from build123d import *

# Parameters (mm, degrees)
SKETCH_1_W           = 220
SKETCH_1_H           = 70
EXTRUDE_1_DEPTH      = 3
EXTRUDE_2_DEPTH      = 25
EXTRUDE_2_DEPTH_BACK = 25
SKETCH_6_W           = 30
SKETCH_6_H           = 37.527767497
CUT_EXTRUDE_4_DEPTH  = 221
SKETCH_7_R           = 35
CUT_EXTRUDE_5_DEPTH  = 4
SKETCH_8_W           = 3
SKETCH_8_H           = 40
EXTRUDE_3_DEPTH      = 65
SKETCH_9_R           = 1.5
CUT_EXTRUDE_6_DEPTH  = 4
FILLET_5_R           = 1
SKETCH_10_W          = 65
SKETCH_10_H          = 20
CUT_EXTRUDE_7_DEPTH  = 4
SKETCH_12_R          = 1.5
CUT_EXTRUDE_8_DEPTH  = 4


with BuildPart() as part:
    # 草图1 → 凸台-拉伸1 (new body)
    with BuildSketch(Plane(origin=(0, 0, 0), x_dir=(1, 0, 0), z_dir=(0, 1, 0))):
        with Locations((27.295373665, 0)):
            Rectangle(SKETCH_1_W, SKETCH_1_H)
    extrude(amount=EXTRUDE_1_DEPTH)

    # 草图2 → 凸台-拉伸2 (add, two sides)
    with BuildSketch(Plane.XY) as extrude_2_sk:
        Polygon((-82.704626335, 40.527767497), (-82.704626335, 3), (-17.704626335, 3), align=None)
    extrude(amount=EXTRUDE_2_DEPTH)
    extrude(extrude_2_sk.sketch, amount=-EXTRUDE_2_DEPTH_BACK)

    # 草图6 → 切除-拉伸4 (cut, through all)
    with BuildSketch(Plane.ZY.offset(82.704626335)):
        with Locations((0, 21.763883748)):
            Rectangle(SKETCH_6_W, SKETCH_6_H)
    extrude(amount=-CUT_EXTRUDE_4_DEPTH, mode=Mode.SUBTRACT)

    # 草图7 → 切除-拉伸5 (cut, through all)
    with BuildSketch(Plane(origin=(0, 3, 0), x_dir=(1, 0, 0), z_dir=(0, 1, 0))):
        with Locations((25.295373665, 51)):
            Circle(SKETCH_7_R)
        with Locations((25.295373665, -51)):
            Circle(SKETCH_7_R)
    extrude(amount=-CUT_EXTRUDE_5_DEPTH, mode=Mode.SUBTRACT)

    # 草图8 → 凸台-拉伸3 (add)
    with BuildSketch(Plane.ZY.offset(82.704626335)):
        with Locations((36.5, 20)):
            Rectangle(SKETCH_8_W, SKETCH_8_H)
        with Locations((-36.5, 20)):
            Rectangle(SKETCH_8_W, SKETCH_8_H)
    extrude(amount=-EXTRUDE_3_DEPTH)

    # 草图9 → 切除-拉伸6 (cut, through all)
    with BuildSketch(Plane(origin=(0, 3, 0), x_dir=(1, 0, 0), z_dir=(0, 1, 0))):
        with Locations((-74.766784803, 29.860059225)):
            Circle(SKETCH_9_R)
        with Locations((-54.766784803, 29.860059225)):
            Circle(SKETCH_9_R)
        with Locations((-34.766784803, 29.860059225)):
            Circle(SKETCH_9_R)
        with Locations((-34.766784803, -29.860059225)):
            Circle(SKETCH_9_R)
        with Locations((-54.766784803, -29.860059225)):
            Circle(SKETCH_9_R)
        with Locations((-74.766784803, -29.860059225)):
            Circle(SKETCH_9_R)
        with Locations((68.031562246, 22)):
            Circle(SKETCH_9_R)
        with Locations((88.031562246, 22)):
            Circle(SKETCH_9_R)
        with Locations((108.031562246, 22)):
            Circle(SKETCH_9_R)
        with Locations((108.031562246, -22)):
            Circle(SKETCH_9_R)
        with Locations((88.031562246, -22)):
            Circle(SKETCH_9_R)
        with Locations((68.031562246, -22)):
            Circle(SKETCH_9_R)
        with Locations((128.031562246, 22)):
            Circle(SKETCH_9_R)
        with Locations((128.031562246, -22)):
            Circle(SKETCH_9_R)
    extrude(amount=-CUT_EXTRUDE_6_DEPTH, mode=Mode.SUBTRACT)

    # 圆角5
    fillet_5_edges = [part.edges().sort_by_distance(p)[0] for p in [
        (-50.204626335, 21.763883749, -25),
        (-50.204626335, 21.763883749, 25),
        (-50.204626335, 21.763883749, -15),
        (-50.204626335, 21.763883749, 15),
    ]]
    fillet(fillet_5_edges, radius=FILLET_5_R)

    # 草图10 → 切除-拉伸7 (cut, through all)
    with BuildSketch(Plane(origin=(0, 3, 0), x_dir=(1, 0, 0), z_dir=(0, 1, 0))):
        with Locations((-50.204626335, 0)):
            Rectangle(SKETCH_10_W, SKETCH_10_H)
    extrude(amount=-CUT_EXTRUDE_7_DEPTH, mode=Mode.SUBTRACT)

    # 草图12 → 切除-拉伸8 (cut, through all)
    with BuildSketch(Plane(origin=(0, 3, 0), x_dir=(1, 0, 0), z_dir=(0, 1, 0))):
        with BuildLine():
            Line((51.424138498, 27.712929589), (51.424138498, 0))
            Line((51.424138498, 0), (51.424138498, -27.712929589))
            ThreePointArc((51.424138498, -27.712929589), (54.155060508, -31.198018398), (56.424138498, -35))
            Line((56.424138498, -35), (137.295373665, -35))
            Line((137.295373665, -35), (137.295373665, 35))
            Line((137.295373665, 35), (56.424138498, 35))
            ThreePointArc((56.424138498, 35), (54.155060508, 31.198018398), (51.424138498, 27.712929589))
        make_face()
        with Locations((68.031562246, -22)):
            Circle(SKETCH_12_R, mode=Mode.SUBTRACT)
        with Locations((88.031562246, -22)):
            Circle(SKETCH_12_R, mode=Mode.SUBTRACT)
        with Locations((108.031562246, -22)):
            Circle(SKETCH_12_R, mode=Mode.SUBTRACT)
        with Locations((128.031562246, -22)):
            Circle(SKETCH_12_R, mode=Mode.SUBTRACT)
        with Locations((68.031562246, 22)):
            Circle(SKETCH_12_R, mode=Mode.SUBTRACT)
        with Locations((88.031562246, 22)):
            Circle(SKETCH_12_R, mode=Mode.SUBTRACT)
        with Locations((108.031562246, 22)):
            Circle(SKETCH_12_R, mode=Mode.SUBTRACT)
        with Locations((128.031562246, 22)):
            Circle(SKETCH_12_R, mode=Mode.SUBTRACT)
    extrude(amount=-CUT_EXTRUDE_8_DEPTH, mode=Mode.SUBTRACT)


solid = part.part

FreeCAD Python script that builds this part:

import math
import FreeCAD as App
import Part
import Sketcher
Q = App.Units.Quantity


def edges_at(feature, points):
    """Names of the edges that pass closest to the given points."""
    edges = feature.Shape.Edges
    near = lambda p: min(range(len(edges)), key=lambda i: edges[i].distToShape(Part.Vertex(*p))[0])
    return sorted({f"Edge{near(p) + 1}" for p in points})


def add_polygon(sketch, points):
    """Adds a closed chain of lines whose ends are joined by coincident constraints."""
    first, n = sketch.GeometryCount, len(points)
    for a, b in zip(points, points[1:] + points[:1]):
        sketch.addGeometry(Part.LineSegment(App.Vector(*a, 0), App.Vector(*b, 0)), False)
    for i in range(n):
        sketch.addConstraint(Sketcher.Constraint("Coincident", first + i, 2, first + (i + 1) % n, 1))

doc = App.newDocument("Part")
params = doc.addObject("Spreadsheet::Sheet", "Params")
for row, (alias, value) in enumerate([
    ("sketch1_width", "220 mm"),
    ("sketch1_height", "70 mm"),
    ("pad1_length", "3 mm"),
    ("sketch2_width", "65 mm"),
    ("pad2_length", "25 mm"),
    ("pad2_length2", "25 mm"),
    ("sketch3_height", "30 mm"),
    ("sketch4_diameter", "70 mm"),
    ("sketch5_width", "40 mm"),
    ("sketch5_height", "3 mm"),
    ("pad3_length", "65 mm"),
    ("sketch6_diameter", "3 mm"),
    ("fillet_radius", "1 mm"),
    ("sketch7_width", "65 mm"),
    ("sketch7_height", "20 mm"),
    ("sketch8_diameter", "3 mm"),
    ("sketch8_radius", "35 mm"),
    ("sketch8_height", "70 mm"),
], start=1):
    params.set(f"A{row}", alias)
    params.set(f"B{row}", "=" + value)
    params.setAlias(f"B{row}", alias)

body = doc.addObject("PartDesign::Body", "Body")

sketch1 = body.newObject("Sketcher::SketchObject", "Sketch")
sketch1.AttachmentSupport = (doc.getObject("XZ_Plane"), [""])
sketch1.MapMode = "FlatFace"
add_polygon(sketch1, [(-82.704626, -35), (-82.704626, 35), (137.295374, 35), (137.295374, -35)])
sketch1.addConstraint(Sketcher.Constraint("Vertical", 0))
sketch1.addConstraint(Sketcher.Constraint("Horizontal", 1))
sketch1.addConstraint(Sketcher.Constraint("Vertical", 2))
sketch1.addConstraint(Sketcher.Constraint("Horizontal", 3))
sketch1.addConstraint(Sketcher.Constraint("DistanceX", 1, 1, 1, 2, Q("220 mm")))
sketch1.addConstraint(Sketcher.Constraint("DistanceY", 0, 1, 0, 2, Q("70 mm")))
sketch1.addConstraint(Sketcher.Constraint("DistanceY", -1, 1, 0, 2, Q("35 mm")))
sketch1.addConstraint(Sketcher.Constraint("DistanceX", 0, 2, -1, 1, Q("82.704626 mm")))
sketch1.setExpression("Constraints[8]", "Params.sketch1_width")
sketch1.setExpression("Constraints[9]", "Params.sketch1_height")
pad1 = body.newObject("PartDesign::Pad", "Pad")
pad1.Profile = sketch1
pad1.setExpression("Length", "Params.pad1_length")
pad1.Reversed = True

sketch2 = body.newObject("Sketcher::SketchObject", "Sketch001")
sketch2.AttachmentSupport = (doc.getObject("XY_Plane"), [""])
sketch2.MapMode = "FlatFace"
add_polygon(sketch2, [(-82.704626, 40.527767), (-82.704626, 3), (-17.704626, 3)])
sketch2.addConstraint(Sketcher.Constraint("Vertical", 0))
sketch2.addConstraint(Sketcher.Constraint("Horizontal", 1))
sketch2.addConstraint(Sketcher.Constraint("DistanceX", 1, 1, 1, 2, Q("65 mm")))
sketch2.addConstraint(Sketcher.Constraint("Angle", 2, Q("150 deg")))
sketch2.addConstraint(Sketcher.Constraint("DistanceY", -1, 1, 0, 2, Q("3 mm")))
sketch2.addConstraint(Sketcher.Constraint("DistanceX", 0, 2, -1, 1, Q("82.704626 mm")))
sketch2.setExpression("Constraints[5]", "Params.sketch2_width")
pad2 = body.newObject("PartDesign::Pad", "Pad001")
pad2.Profile = sketch2
pad2.Type = "TwoLengths"
pad2.setExpression("Length", "Params.pad2_length")
pad2.setExpression("Length2", "Params.pad2_length2")

sketch3 = body.newObject("Sketcher::SketchObject", "Sketch002")
sketch3.AttachmentSupport = (doc.getObject("YZ_Plane"), [""])
sketch3.MapMode = "FlatFace"
sketch3.AttachmentOffset = App.Placement(App.Vector(0, 0, -82.704626), App.Rotation())
add_polygon(sketch3, [(40.527767, -15), (3, -15), (3, 15), (40.527767, 15)])
sketch3.addConstraint(Sketcher.Constraint("Horizontal", 0))
sketch3.addConstraint(Sketcher.Constraint("Vertical", 1))
sketch3.addConstraint(Sketcher.Constraint("Horizontal", 2))
sketch3.addConstraint(Sketcher.Constraint("Vertical", 3))
sketch3.addConstraint(Sketcher.Constraint("DistanceY", 1, 1, 1, 2, Q("30 mm")))
sketch3.addConstraint(Sketcher.Constraint("DistanceX", -1, 1, 0, 2, Q("3 mm")))
sketch3.addConstraint(Sketcher.Constraint("DistanceY", 0, 2, -1, 1, Q("15 mm")))
sketch3.addConstraint(Sketcher.Constraint("DistanceX", 0, 2, 0, 1, Q("37.527767 mm")))
sketch3.setExpression("Constraints[8]", "Params.sketch3_height")
pocket1 = body.newObject("PartDesign::Pocket", "Pocket")
pocket1.Profile = sketch3
pocket1.Type = "ThroughAll"
pocket1.Reversed = True

sketch4 = body.newObject("Sketcher::SketchObject", "Sketch003")
sketch4.AttachmentSupport = (doc.getObject("XZ_Plane"), [""])
sketch4.MapMode = "FlatFace"
sketch4.AttachmentOffset = App.Placement(App.Vector(0, 0, -3), App.Rotation())
sketch4.addGeometry(Part.Circle(App.Vector(25.295374, -51, 0), App.Vector(0, 0, 1), 35), False)
sketch4.addGeometry(Part.Circle(App.Vector(25.295374, 51, 0), App.Vector(0, 0, 1), 35), False)
sketch4.addConstraint(Sketcher.Constraint("Equal", 0, 1))
sketch4.addConstraint(Sketcher.Constraint("Symmetric", 0, 3, 1, 3, -1))
sketch4.addConstraint(Sketcher.Constraint("Diameter", 0, Q("70 mm")))
sketch4.addConstraint(Sketcher.Constraint("DistanceY", 0, 3, -1, 1, Q("51 mm")))
sketch4.addConstraint(Sketcher.Constraint("DistanceX", -1, 1, 0, 3, Q("25.295374 mm")))
sketch4.setExpression("Constraints[2]", "Params.sketch4_diameter")
pocket2 = body.newObject("PartDesign::Pocket", "Pocket001")
pocket2.Profile = sketch4
pocket2.Type = "ThroughAll"
pocket2.Reversed = True

sketch5 = body.newObject("Sketcher::SketchObject", "Sketch004")
sketch5.AttachmentSupport = (doc.getObject("YZ_Plane"), [""])
sketch5.MapMode = "FlatFace"
sketch5.AttachmentOffset = App.Placement(App.Vector(0, 0, -82.704626), App.Rotation())
add_polygon(sketch5, [(40, 35), (0, 35), (0, 38), (40, 38)])
add_polygon(sketch5, [(40, -38), (0, -38), (0, -35), (40, -35)])
sketch5.addConstraint(Sketcher.Constraint("Horizontal", 0))
sketch5.addConstraint(Sketcher.Constraint("Vertical", 1))
sketch5.addConstraint(Sketcher.Constraint("Horizontal", 2))
sketch5.addConstraint(Sketcher.Constraint("Vertical", 3))
sketch5.addConstraint(Sketcher.Constraint("Horizontal", 4))
sketch5.addConstraint(Sketcher.Constraint("Vertical", 5))
sketch5.addConstraint(Sketcher.Constraint("Horizontal", 6))
sketch5.addConstraint(Sketcher.Constraint("Vertical", 7))
sketch5.addConstraint(Sketcher.Constraint("Symmetric", 1, 2, 4, 2, -1, 1))
sketch5.addConstraint(Sketcher.Constraint("Symmetric", 0, 2, 5, 2, -1))
sketch5.addConstraint(Sketcher.Constraint("Vertical", 3, 2, 6, 2))
sketch5.addConstraint(Sketcher.Constraint("DistanceX", 0, 2, 0, 1, Q("40 mm")))
sketch5.addConstraint(Sketcher.Constraint("DistanceY", 1, 1, 1, 2, Q("3 mm")))
sketch5.addConstraint(Sketcher.Constraint("DistanceY", -1, 1, 0, 2, Q("35 mm")))
sketch5.setExpression("Constraints[19]", "Params.sketch5_width")
sketch5.setExpression("Constraints[20]", "Params.sketch5_height")
pad3 = body.newObject("PartDesign::Pad", "Pad002")
pad3.Profile = sketch5
pad3.setExpression("Length", "Params.pad3_length")

sketch6 = body.newObject("Sketcher::SketchObject", "Sketch005")
sketch6.AttachmentSupport = (doc.getObject("XZ_Plane"), [""])
sketch6.MapMode = "FlatFace"
sketch6.AttachmentOffset = App.Placement(App.Vector(0, 0, -3), App.Rotation())
sketch6.addGeometry(Part.Circle(App.Vector(-74.766785, -29.860059, 0), App.Vector(0, 0, 1), 1.5), False)
sketch6.addGeometry(Part.Circle(App.Vector(-54.766785, -29.860059, 0), App.Vector(0, 0, 1), 1.5), False)
sketch6.addGeometry(Part.Circle(App.Vector(-34.766785, -29.860059, 0), App.Vector(0, 0, 1), 1.5), False)
sketch6.addGeometry(Part.Circle(App.Vector(-34.766785, 29.860059, 0), App.Vector(0, 0, 1), 1.5), False)
sketch6.addGeometry(Part.Circle(App.Vector(-54.766785, 29.860059, 0), App.Vector(0, 0, 1), 1.5), False)
sketch6.addGeometry(Part.Circle(App.Vector(-74.766785, 29.860059, 0), App.Vector(0, 0, 1), 1.5), False)
sketch6.addGeometry(Part.Circle(App.Vector(68.031562, -22, 0), App.Vector(0, 0, 1), 1.5), False)
sketch6.addGeometry(Part.Circle(App.Vector(88.031562, -22, 0), App.Vector(0, 0, 1), 1.5), False)
sketch6.addGeometry(Part.Circle(App.Vector(108.031562, -22, 0), App.Vector(0, 0, 1), 1.5), False)
sketch6.addGeometry(Part.Circle(App.Vector(108.031562, 22, 0), App.Vector(0, 0, 1), 1.5), False)
sketch6.addGeometry(Part.Circle(App.Vector(88.031562, 22, 0), App.Vector(0, 0, 1), 1.5), False)
sketch6.addGeometry(Part.Circle(App.Vector(68.031562, 22, 0), App.Vector(0, 0, 1), 1.5), False)
sketch6.addGeometry(Part.Circle(App.Vector(128.031562, -22, 0), App.Vector(0, 0, 1), 1.5), False)
sketch6.addGeometry(Part.Circle(App.Vector(128.031562, 22, 0), App.Vector(0, 0, 1), 1.5), False)
sketch6.addConstraint(Sketcher.Constraint("Equal", 0, 1))
sketch6.addConstraint(Sketcher.Constraint("Equal", 1, 2))
sketch6.addConstraint(Sketcher.Constraint("Equal", 2, 3))
sketch6.addConstraint(Sketcher.Constraint("Equal", 3, 4))
sketch6.addConstraint(Sketcher.Constraint("Equal", 4, 5))
sketch6.addConstraint(Sketcher.Constraint("Equal", 5, 6))
sketch6.addConstraint(Sketcher.Constraint("Equal", 6, 7))
sketch6.addConstraint(Sketcher.Constraint("Equal", 7, 8))
sketch6.addConstraint(Sketcher.Constraint("Equal", 8, 9))
sketch6.addConstraint(Sketcher.Constraint("Equal", 9, 10))
sketch6.addConstraint(Sketcher.Constraint("Equal", 10, 11))
sketch6.addConstraint(Sketcher.Constraint("Equal", 11, 12))
sketch6.addConstraint(Sketcher.Constraint("Equal", 12, 13))
sketch6.addConstraint(Sketcher.Constraint("Symmetric", 2, 3, 3, 3, -1))
sketch6.addConstraint(Sketcher.Constraint("Symmetric", 1, 3, 4, 3, -1))
sketch6.addConstraint(Sketcher.Constraint("Symmetric", 0, 3, 5, 3, -1))
sketch6.addConstraint(Sketcher.Constraint("Symmetric", 8, 3, 9, 3, -1))
sketch6.addConstraint(Sketcher.Constraint("Symmetric", 7, 3, 10, 3, -1))
sketch6.addConstraint(Sketcher.Constraint("Symmetric", 6, 3, 11, 3, -1))
sketch6.addConstraint(Sketcher.Constraint("Symmetric", 12, 3, 13, 3, -1))
sketch6.addConstraint(Sketcher.Constraint("Horizontal", 0, 3, 1, 3))
sketch6.addConstraint(Sketcher.Constraint("Horizontal", 1, 3, 2, 3))
sketch6.addConstraint(Sketcher.Constraint("Horizontal", 6, 3, 7, 3))
sketch6.addConstraint(Sketcher.Constraint("Horizontal", 7, 3, 8, 3))
sketch6.addConstraint(Sketcher.Constraint("Horizontal", 8, 3, 12, 3))
sketch6.addConstraint(Sketcher.Constraint("Diameter", 0, Q("3 mm")))
sketch6.addConstraint(Sketcher.Constraint("DistanceY", 6, 3, -1, 1, Q("22 mm")))
sketch6.addConstraint(Sketcher.Constraint("DistanceX", 0, 3, 1, 3, Q("20 mm")))
sketch6.addConstraint(Sketcher.Constraint("DistanceX", 1, 3, 2, 3, Q("20 mm")))
sketch6.addConstraint(Sketcher.Constraint("DistanceX", 6, 3, 7, 3, Q("20 mm")))
sketch6.addConstraint(Sketcher.Constraint("DistanceX", 7, 3, 8, 3, Q("20 mm")))
sketch6.addConstraint(Sketcher.Constraint("DistanceX", 8, 3, 12, 3, Q("20 mm")))
sketch6.addConstraint(Sketcher.Constraint("DistanceY", 0, 3, -1, 1, Q("29.860059 mm")))
sketch6.addConstraint(Sketcher.Constraint("DistanceX", 0, 3, -1, 1, Q("74.766785 mm")))
sketch6.addConstraint(Sketcher.Constraint("DistanceX", -1, 1, 6, 3, Q("68.031562 mm")))
sketch6.setExpression("Constraints[25]", "Params.sketch6_diameter")
pocket3 = body.newObject("PartDesign::Pocket", "Pocket002")
pocket3.Profile = sketch6
pocket3.Type = "ThroughAll"
pocket3.Reversed = True
doc.recompute()

fillet = body.newObject("PartDesign::Fillet", "Fillet")
fillet.Base = (pocket3, edges_at(pocket3, [
    (-50.205, 21.764, -25),
    (-50.205, 21.764, 25),
    (-50.205, 21.764, -15),
    (-50.205, 21.764, 15),
]))
fillet.setExpression("Radius", "Params.fillet_radius")

sketch7 = body.newObject("Sketcher::SketchObject", "Sketch006")
sketch7.AttachmentSupport = (doc.getObject("XZ_Plane"), [""])
sketch7.MapMode = "FlatFace"
sketch7.AttachmentOffset = App.Placement(App.Vector(0, 0, -3), App.Rotation())
add_polygon(sketch7, [(-82.704626, -10), (-82.704626, 10), (-17.704626, 10), (-17.704626, -10)])
sketch7.addConstraint(Sketcher.Constraint("Vertical", 0))
sketch7.addConstraint(Sketcher.Constraint("Horizontal", 1))
sketch7.addConstraint(Sketcher.Constraint("Vertical", 2))
sketch7.addConstraint(Sketcher.Constraint("Horizontal", 3))
sketch7.addConstraint(Sketcher.Constraint("DistanceX", 1, 1, 1, 2, Q("65 mm")))
sketch7.addConstraint(Sketcher.Constraint("DistanceY", 0, 1, 0, 2, Q("20 mm")))
sketch7.addConstraint(Sketcher.Constraint("DistanceY", -1, 1, 0, 2, Q("10 mm")))
sketch7.addConstraint(Sketcher.Constraint("DistanceX", 0, 2, -1, 1, Q("82.704626 mm")))
sketch7.setExpression("Constraints[8]", "Params.sketch7_width")
sketch7.setExpression("Constraints[9]", "Params.sketch7_height")
pocket4 = body.newObject("PartDesign::Pocket", "Pocket003")
pocket4.Profile = sketch7
pocket4.Type = "ThroughAll"
pocket4.Reversed = True

sketch8 = body.newObject("Sketcher::SketchObject", "Sketch007")
sketch8.AttachmentSupport = (doc.getObject("XZ_Plane"), [""])
sketch8.MapMode = "FlatFace"
sketch8.AttachmentOffset = App.Placement(App.Vector(0, 0, -3), App.Rotation())
sketch8.addGeometry(Part.LineSegment(App.Vector(51.424138, -27.71293, 0), App.Vector(51.424138, 27.71293, 0)), False)
sketch8.addGeometry(Part.ArcOfCircle(Part.Circle(App.Vector(25.295374, 51, 0), App.Vector(0, 0, 1), 35), math.radians(-41.708788), math.radians(-27.202894)), False)
sketch8.addGeometry(Part.LineSegment(App.Vector(56.424138, 35, 0), App.Vector(137.295374, 35, 0)), False)
sketch8.addGeometry(Part.LineSegment(App.Vector(137.295374, 35, 0), App.Vector(137.295374, -35, 0)), False)
sketch8.addGeometry(Part.LineSegment(App.Vector(137.295374, -35, 0), App.Vector(56.424138, -35, 0)), False)
sketch8.addGeometry(Part.ArcOfCircle(Part.Circle(App.Vector(25.295374, -51, 0), App.Vector(0, 0, 1), 35), math.radians(27.202894), math.radians(41.708788)), False)
sketch8.addGeometry(Part.Circle(App.Vector(68.031562, 22, 0), App.Vector(0, 0, 1), 1.5), False)
sketch8.addGeometry(Part.Circle(App.Vector(88.031562, 22, 0), App.Vector(0, 0, 1), 1.5), False)
sketch8.addGeometry(Part.Circle(App.Vector(108.031562, 22, 0), App.Vector(0, 0, 1), 1.5), False)
sketch8.addGeometry(Part.Circle(App.Vector(128.031562, 22, 0), App.Vector(0, 0, 1), 1.5), False)
sketch8.addGeometry(Part.Circle(App.Vector(68.031562, -22, 0), App.Vector(0, 0, 1), 1.5), False)
sketch8.addGeometry(Part.Circle(App.Vector(88.031562, -22, 0), App.Vector(0, 0, 1), 1.5), False)
sketch8.addGeometry(Part.Circle(App.Vector(108.031562, -22, 0), App.Vector(0, 0, 1), 1.5), False)
sketch8.addGeometry(Part.Circle(App.Vector(128.031562, -22, 0), App.Vector(0, 0, 1), 1.5), False)
sketch8.addConstraint(Sketcher.Constraint("Coincident", 0, 2, 1, 1))
sketch8.addConstraint(Sketcher.Constraint("Coincident", 1, 2, 2, 1))
sketch8.addConstraint(Sketcher.Constraint("Coincident", 2, 2, 3, 1))
sketch8.addConstraint(Sketcher.Constraint("Coincident", 3, 2, 4, 1))
sketch8.addConstraint(Sketcher.Constraint("Coincident", 4, 2, 5, 1))
sketch8.addConstraint(Sketcher.Constraint("Coincident", 5, 2, 0, 1))
sketch8.addConstraint(Sketcher.Constraint("Vertical", 0))
sketch8.addConstraint(Sketcher.Constraint("Horizontal", 2))
sketch8.addConstraint(Sketcher.Constraint("Vertical", 3))
sketch8.addConstraint(Sketcher.Constraint("Horizontal", 4))
sketch8.addConstraint(Sketcher.Constraint("Equal", 1, 5))
sketch8.addConstraint(Sketcher.Constraint("Equal", 6, 7))
sketch8.addConstraint(Sketcher.Constraint("Equal", 7, 8))
sketch8.addConstraint(Sketcher.Constraint("Equal", 8, 9))
sketch8.addConstraint(Sketcher.Constraint("Equal", 9, 10))
sketch8.addConstraint(Sketcher.Constraint("Equal", 10, 11))
sketch8.addConstraint(Sketcher.Constraint("Equal", 11, 12))
sketch8.addConstraint(Sketcher.Constraint("Equal", 12, 13))
sketch8.addConstraint(Sketcher.Constraint("Symmetric", 1, 3, 5, 3, -1))
sketch8.addConstraint(Sketcher.Constraint("Symmetric", 6, 3, 10, 3, -1))
sketch8.addConstraint(Sketcher.Constraint("Symmetric", 7, 3, 11, 3, -1))
sketch8.addConstraint(Sketcher.Constraint("Symmetric", 8, 3, 12, 3, -1))
sketch8.addConstraint(Sketcher.Constraint("Symmetric", 9, 3, 13, 3, -1))
sketch8.addConstraint(Sketcher.Constraint("Horizontal", 6, 3, 7, 3))
sketch8.addConstraint(Sketcher.Constraint("Horizontal", 7, 3, 8, 3))
sketch8.addConstraint(Sketcher.Constraint("Horizontal", 8, 3, 9, 3))
sketch8.addConstraint(Sketcher.Constraint("Vertical", 1, 2, 4, 2))
sketch8.addConstraint(Sketcher.Constraint("Diameter", 6, Q("3 mm")))
sketch8.addConstraint(Sketcher.Constraint("Radius", 1, Q("35 mm")))
sketch8.addConstraint(Sketcher.Constraint("DistanceY", 3, 2, 3, 1, Q("70 mm")))
sketch8.addConstraint(Sketcher.Constraint("DistanceY", -1, 1, 1, 3, Q("51 mm")))
sketch8.addConstraint(Sketcher.Constraint("DistanceY", -1, 1, 6, 3, Q("22 mm")))
sketch8.addConstraint(Sketcher.Constraint("DistanceX", 6, 3, 7, 3, Q("20 mm")))
sketch8.addConstraint(Sketcher.Constraint("DistanceX", 7, 3, 8, 3, Q("20 mm")))
sketch8.addConstraint(Sketcher.Constraint("DistanceX", 8, 3, 9, 3, Q("20 mm")))
sketch8.addConstraint(Sketcher.Constraint("DistanceX", 0, 2, 1, 2, Q("5 mm")))
sketch8.addConstraint(Sketcher.Constraint("DistanceX", 2, 1, 2, 2, Q("80.871235 mm")))
sketch8.addConstraint(Sketcher.Constraint("DistanceX", -1, 1, 0, 2, Q("51.424138 mm")))
sketch8.addConstraint(Sketcher.Constraint("DistanceX", 1, 3, 6, 3, Q("42.736189 mm")))
sketch8.setExpression("Constraints[27]", "Params.sketch8_diameter")
sketch8.setExpression("Constraints[28]", "Params.sketch8_radius")
sketch8.setExpression("Constraints[29]", "Params.sketch8_height")
pocket5 = body.newObject("PartDesign::Pocket", "Pocket004")
pocket5.Profile = sketch8
pocket5.Type = "ThroughAll"
pocket5.Reversed = True

doc.recompute()
